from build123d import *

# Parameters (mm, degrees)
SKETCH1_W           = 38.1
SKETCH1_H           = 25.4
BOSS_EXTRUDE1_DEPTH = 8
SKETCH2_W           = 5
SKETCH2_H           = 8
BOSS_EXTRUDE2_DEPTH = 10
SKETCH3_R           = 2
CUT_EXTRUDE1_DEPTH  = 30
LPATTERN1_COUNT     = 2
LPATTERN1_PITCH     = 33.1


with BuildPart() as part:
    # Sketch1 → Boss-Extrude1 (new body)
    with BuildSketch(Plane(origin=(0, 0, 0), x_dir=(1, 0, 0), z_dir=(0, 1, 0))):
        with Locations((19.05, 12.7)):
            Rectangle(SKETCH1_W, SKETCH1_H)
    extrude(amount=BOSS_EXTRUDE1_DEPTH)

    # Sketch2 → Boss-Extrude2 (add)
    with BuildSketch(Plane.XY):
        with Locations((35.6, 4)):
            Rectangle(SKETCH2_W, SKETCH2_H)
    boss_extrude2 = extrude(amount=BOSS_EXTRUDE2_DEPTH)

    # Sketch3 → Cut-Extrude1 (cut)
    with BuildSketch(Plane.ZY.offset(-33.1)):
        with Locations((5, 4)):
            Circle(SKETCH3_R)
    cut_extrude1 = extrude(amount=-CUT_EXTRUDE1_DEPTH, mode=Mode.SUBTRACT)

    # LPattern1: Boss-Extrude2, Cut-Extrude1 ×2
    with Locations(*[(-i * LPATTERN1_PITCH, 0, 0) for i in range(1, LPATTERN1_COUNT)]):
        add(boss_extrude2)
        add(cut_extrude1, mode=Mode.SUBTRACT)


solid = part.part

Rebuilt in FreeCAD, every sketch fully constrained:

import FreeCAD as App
import Part
import Sketcher
Q = App.Units.Quantity

doc = App.newDocument("Part")
params = doc.addObject("Spreadsheet::Sheet", "Params")
for row, (alias, value) in enumerate([
    ("sketch1_width", "38.1 mm"),
    ("sketch1_height", "25.4 mm"),
    ("pad1_length", "8 mm"),
    ("sketch2_width", "5 mm"),
    ("sketch2_height", "8 mm"),
    ("pad2_length", "10 mm"),
    ("sketch3_diameter", "4 mm"),
    ("pocket1_length", "30 mm"),
    ("linearpattern_pitch", "33.1 mm"),
], start=1):
    params.set(f"A{row}", alias)
    params.set(f"B{row}", "=" + value)
    params.setAlias(f"B{row}", alias)

body = doc.addObject("PartDesign::Body", "Body")

# Sketch on XZ plane
sketch1 = body.newObject("Sketcher::SketchObject", "Sketch")
sketch1.AttachmentSupport = (doc.getObject("XZ_Plane"), [""])
sketch1.MapMode = "FlatFace"
sketch1.addGeometry(Part.LineSegment(App.Vector(0, -25, 0), App.Vector(0, 0, 0)), False)
sketch1.addGeometry(Part.LineSegment(App.Vector(0, 0, 0), App.Vector(38, 0, 0)), False)
sketch1.addGeometry(Part.LineSegment(App.Vector(38, 0, 0), App.Vector(38, -25, 0)), False)
sketch1.addGeometry(Part.LineSegment(App.Vector(38, -25, 0), App.Vector(0, -25, 0)), False)
sketch1.addConstraint(Sketcher.Constraint("Coincident", 0, 2, 1, 1))
sketch1.addConstraint(Sketcher.Constraint("Coincident", 1, 2, 2, 1))
sketch1.addConstraint(Sketcher.Constraint("Coincident", 2, 2, 3, 1))
sketch1.addConstraint(Sketcher.Constraint("Coincident", 3, 2, 0, 1))
sketch1.addConstraint(Sketcher.Constraint("Vertical", 0))
sketch1.addConstraint(Sketcher.Constraint("Horizontal", 1))
sketch1.addConstraint(Sketcher.Constraint("Vertical", 2))
sketch1.addConstraint(Sketcher.Constraint("Horizontal", 3))
sketch1.addConstraint(Sketcher.Constraint("Coincident", 0, 2, -1, 1))
sketch1.addConstraint(Sketcher.Constraint("DistanceX", 1, 1, 1, 2, Q("38.1 mm")))
sketch1.addConstraint(Sketcher.Constraint("DistanceY", 0, 1, 0, 2, Q("25.4 mm")))
sketch1.setExpression("Constraints[9]", "Params.sketch1_width")
sketch1.setExpression("Constraints[10]", "Params.sketch1_height")
pad1 = body.newObject("PartDesign::Pad", "Pad")
pad1.Profile = sketch1
pad1.setExpression("Length", "Params.pad1_length")
pad1.Reversed = True

# Sketch on XY plane
sketch2 = body.newObject("Sketcher::SketchObject", "Sketch001")
sketch2.AttachmentSupport = (doc.getObject("XY_Plane"), [""])
sketch2.MapMode = "FlatFace"
sketch2.addGeometry(Part.LineSegment(App.Vector(33, 8, 0), App.Vector(33, 0, 0)), False)
sketch2.addGeometry(Part.LineSegment(App.Vector(33, 0, 0), App.Vector(38, 0, 0)), False)
sketch2.addGeometry(Part.LineSegment(App.Vector(38, 0, 0), App.Vector(38, 8, 0)), False)
sketch2.addGeometry(Part.LineSegment(App.Vector(38, 8, 0), App.Vector(33, 8, 0)), False)
sketch2.addConstraint(Sketcher.Constraint("Coincident", 0, 2, 1, 1))
sketch2.addConstraint(Sketcher.Constraint("Coincident", 1, 2, 2, 1))
sketch2.addConstraint(Sketcher.Constraint("Coincident", 2, 2, 3, 1))
sketch2.addConstraint(Sketcher.Constraint("Coincident", 3, 2, 0, 1))
sketch2.addConstraint(Sketcher.Constraint("Vertical", 0))
sketch2.addConstraint(Sketcher.Constraint("Horizontal", 1))
sketch2.addConstraint(Sketcher.Constraint("Vertical", 2))
sketch2.addConstraint(Sketcher.Constraint("Horizontal", 3))
sketch2.addConstraint(Sketcher.Constraint("PointOnObject", 0, 2, -1))
sketch2.addConstraint(Sketcher.Constraint("DistanceX", 1, 1, 1, 2, Q("5 mm")))
sketch2.addConstraint(Sketcher.Constraint("DistanceY", 0, 2, 0, 1, Q("8 mm")))
sketch2.addConstraint(Sketcher.Constraint("DistanceX", -1, 1, 0, 2, Q("33.1 mm")))
sketch2.setExpression("Constraints[9]", "Params.sketch2_width")
sketch2.setExpression("Constraints[10]", "Params.sketch2_height")
pad2 = body.newObject("PartDesign::Pad", "Pad001")
pad2.Profile = sketch2
pad2.setExpression("Length", "Params.pad2_length")

# Sketch on YZ plane
sketch3 = body.newObject("Sketcher::SketchObject", "Sketch002")
sketch3.AttachmentSupport = (doc.getObject("YZ_Plane"), [""])
sketch3.MapMode = "FlatFace"
sketch3.AttachmentOffset = App.Placement(App.Vector(0, 0, 33.1), App.Rotation())
sketch3.addGeometry(Part.Circle(App.Vector(4, 5, 0), App.Vector(0, 0, 1), 2), False)
sketch3.addConstraint(Sketcher.Constraint("Diameter", 0, Q("4 mm")))
sketch3.addConstraint(Sketcher.Constraint("DistanceX", -1, 1, 0, 3, Q("4 mm")))
sketch3.addConstraint(Sketcher.Constraint("DistanceY", -1, 1, 0, 3, Q("5 mm")))
sketch3.setExpression("Constraints[0]", "Params.sketch3_diameter")
pocket1 = body.newObject("PartDesign::Pocket", "Pocket")
pocket1.Profile = sketch3
pocket1.setExpression("Length", "Params.pocket1_length")
pocket1.Reversed = True
doc.recompute()

linearpattern = body.newObject("PartDesign::LinearPattern", "LinearPattern")
linearpattern.Originals = [pad2, pocket1]
linearpattern.Direction = (doc.getObject("X_Axis"), [""])
linearpattern.Mode = "offset"
linearpattern.setExpression("Offset", "Params.linearpattern_pitch")
linearpattern.Occurrences = 2
linearpattern.Reversed = True
body.Tip = linearpattern

doc.recompute()
